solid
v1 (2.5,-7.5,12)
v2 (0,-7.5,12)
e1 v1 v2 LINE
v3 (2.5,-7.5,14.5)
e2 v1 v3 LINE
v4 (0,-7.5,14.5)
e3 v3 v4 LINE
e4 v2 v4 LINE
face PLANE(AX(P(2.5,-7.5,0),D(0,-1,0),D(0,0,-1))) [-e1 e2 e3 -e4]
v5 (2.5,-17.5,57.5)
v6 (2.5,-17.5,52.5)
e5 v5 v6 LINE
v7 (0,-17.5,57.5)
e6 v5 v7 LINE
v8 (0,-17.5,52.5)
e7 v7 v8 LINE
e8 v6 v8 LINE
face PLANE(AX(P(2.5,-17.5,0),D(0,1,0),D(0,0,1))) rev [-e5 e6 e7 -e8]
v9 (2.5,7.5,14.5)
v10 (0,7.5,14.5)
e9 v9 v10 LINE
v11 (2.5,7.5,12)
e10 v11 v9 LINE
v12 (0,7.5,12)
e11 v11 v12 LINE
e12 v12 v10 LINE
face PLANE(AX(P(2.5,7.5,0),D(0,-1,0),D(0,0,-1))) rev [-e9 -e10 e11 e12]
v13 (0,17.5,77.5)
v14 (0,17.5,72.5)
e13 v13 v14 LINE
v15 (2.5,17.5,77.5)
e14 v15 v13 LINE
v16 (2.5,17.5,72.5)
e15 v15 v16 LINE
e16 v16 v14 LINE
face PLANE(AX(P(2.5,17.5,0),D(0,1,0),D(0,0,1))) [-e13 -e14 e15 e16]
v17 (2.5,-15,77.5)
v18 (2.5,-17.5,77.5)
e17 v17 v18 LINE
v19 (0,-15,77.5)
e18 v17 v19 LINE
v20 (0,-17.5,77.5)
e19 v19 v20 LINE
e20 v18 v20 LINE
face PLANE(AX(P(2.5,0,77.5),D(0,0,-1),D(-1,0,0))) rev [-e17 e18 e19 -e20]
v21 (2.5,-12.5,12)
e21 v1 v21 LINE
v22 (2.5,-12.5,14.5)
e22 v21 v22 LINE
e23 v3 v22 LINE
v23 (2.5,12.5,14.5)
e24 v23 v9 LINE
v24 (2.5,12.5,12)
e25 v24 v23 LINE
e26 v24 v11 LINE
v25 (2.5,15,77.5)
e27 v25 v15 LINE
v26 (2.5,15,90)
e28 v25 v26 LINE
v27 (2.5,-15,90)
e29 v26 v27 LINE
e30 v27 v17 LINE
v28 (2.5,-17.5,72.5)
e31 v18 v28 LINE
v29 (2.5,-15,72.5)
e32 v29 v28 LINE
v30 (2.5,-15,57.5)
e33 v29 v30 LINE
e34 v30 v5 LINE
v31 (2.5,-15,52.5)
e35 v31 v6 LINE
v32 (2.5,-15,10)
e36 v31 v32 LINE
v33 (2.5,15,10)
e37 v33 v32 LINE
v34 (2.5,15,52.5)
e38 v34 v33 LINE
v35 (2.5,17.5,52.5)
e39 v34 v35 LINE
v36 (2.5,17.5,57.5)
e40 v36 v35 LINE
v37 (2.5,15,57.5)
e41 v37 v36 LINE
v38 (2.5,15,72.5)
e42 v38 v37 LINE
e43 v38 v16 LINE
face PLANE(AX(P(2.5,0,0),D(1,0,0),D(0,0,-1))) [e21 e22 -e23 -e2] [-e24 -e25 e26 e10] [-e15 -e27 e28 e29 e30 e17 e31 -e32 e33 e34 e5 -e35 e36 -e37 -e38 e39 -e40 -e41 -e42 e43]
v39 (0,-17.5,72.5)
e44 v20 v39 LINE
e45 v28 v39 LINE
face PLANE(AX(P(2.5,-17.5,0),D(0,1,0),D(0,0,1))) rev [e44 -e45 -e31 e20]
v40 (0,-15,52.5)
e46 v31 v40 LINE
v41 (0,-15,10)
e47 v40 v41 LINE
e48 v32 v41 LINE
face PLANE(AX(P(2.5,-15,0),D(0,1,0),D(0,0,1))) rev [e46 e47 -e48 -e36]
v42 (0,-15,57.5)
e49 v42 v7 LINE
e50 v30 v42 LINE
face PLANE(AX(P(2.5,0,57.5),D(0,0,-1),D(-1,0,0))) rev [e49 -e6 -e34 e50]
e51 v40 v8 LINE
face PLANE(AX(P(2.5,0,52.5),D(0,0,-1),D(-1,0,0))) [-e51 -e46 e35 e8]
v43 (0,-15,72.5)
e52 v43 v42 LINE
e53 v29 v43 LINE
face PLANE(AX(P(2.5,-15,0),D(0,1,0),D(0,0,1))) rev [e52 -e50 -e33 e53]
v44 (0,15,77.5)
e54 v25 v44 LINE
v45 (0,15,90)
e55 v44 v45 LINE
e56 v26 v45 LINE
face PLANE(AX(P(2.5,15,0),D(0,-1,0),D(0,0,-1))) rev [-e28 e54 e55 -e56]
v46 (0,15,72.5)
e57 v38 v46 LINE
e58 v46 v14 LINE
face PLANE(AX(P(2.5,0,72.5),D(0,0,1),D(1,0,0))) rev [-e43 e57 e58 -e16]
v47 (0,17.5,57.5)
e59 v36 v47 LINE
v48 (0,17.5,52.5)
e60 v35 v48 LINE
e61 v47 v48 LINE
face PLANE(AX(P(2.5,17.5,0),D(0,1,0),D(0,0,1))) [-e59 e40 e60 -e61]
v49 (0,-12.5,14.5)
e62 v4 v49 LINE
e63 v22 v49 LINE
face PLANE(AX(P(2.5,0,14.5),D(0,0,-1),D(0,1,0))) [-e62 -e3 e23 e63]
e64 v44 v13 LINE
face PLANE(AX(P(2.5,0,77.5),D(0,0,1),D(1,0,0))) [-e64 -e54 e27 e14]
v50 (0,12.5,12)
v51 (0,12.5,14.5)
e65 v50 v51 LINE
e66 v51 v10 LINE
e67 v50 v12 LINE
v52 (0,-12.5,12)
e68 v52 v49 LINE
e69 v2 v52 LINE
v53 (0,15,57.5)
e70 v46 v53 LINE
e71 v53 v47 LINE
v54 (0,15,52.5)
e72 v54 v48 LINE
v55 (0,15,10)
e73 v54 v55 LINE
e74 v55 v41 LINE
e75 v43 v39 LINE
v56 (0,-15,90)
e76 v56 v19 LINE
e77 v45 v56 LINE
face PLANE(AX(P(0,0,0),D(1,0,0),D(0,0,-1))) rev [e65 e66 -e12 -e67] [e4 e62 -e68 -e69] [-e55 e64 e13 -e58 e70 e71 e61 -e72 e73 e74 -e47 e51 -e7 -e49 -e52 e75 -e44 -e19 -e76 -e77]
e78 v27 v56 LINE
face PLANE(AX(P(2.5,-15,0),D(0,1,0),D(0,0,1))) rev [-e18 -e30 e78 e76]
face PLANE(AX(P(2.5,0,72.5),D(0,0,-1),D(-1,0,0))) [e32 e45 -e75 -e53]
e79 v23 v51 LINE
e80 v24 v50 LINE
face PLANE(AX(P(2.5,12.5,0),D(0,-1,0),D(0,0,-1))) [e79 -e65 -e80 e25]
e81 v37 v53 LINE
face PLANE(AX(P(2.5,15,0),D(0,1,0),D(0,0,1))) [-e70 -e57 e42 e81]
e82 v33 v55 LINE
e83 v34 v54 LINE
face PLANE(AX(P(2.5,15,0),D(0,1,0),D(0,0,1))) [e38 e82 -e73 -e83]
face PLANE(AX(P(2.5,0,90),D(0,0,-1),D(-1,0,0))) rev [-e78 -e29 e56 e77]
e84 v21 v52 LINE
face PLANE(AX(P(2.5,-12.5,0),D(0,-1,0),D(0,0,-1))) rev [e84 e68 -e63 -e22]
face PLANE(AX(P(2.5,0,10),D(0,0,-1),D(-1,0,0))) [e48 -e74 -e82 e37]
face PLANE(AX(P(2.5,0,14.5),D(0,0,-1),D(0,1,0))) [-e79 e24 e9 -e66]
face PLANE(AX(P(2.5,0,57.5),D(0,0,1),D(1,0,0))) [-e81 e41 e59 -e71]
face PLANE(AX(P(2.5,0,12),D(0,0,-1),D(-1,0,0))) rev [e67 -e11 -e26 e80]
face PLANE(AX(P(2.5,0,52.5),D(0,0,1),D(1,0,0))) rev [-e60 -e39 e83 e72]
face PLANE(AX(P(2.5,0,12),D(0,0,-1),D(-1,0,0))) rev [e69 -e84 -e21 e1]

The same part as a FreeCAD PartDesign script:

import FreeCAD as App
import Part
import Sketcher

V = App.Vector
Q = App.Units.Quantity


def add_polygon(sketch, points):
    """Adds a closed chain of lines whose ends are joined by coincident constraints."""
    first, n = sketch.GeometryCount, len(points)
    for a, b in zip(points, points[1:] + points[:1]):
        sketch.addGeometry(Part.LineSegment(App.Vector(*a, 0), App.Vector(*b, 0)), False)
    for i in range(n):
        sketch.addConstraint(Sketcher.Constraint("Coincident", first + i, 2, first + (i + 1) % n, 1))

doc = App.newDocument("Part")
body = doc.addObject("PartDesign::Body", "Body")

# Sketch on YZ plane
sketch1 = body.newObject("Sketcher::SketchObject", "Sketch")
sketch1.AttachmentSupport = (doc.getObject("YZ_Plane"), [""])
sketch1.MapMode = "FlatFace"
add_polygon(sketch1, [(15, 10), (15, 52.5), (17.5, 52.5), (17.5, 57.5), (15, 57.5), (15, 72.5), (17.5, 72.5), (17.5, 77.5), (15, 77.5), (15, 90), (-15, 90), (-15, 77.5), (-17.5, 77.5), (-17.5, 72.5), (-15, 72.5), (-15, 57.5), (-17.5, 57.5), (-17.5, 52.5), (-15, 52.5), (-15, 10)])  # lines 0-19
add_polygon(sketch1, [(-12.5, 12), (-12.5, 14.5), (-7.5, 14.5), (-7.5, 12)])  # lines 20-23
add_polygon(sketch1, [(7.5, 12), (7.5, 14.5), (12.5, 14.5), (12.5, 12)])  # lines 24-27
sketch1.addConstraint(Sketcher.Constraint("Vertical", 0))
sketch1.addConstraint(Sketcher.Constraint("Horizontal", 1))
sketch1.addConstraint(Sketcher.Constraint("Vertical", 2))
sketch1.addConstraint(Sketcher.Constraint("Horizontal", 3))
sketch1.addConstraint(Sketcher.Constraint("Vertical", 4))
sketch1.addConstraint(Sketcher.Constraint("Horizontal", 5))
sketch1.addConstraint(Sketcher.Constraint("Vertical", 6))
sketch1.addConstraint(Sketcher.Constraint("Horizontal", 7))
sketch1.addConstraint(Sketcher.Constraint("Vertical", 8))
sketch1.addConstraint(Sketcher.Constraint("Horizontal", 9))
sketch1.addConstraint(Sketcher.Constraint("Vertical", 10))
sketch1.addConstraint(Sketcher.Constraint("Horizontal", 11))
sketch1.addConstraint(Sketcher.Constraint("Vertical", 12))
sketch1.addConstraint(Sketcher.Constraint("Horizontal", 13))
sketch1.addConstraint(Sketcher.Constraint("Vertical", 14))
sketch1.addConstraint(Sketcher.Constraint("Horizontal", 15))
sketch1.addConstraint(Sketcher.Constraint("Vertical", 16))
sketch1.addConstraint(Sketcher.Constraint("Horizontal", 17))
sketch1.addConstraint(Sketcher.Constraint("Vertical", 18))
sketch1.addConstraint(Sketcher.Constraint("Horizontal", 19))
sketch1.addConstraint(Sketcher.Constraint("Vertical", 20))
sketch1.addConstraint(Sketcher.Constraint("Horizontal", 21))
sketch1.addConstraint(Sketcher.Constraint("Vertical", 22))
sketch1.addConstraint(Sketcher.Constraint("Horizontal", 23))
sketch1.addConstraint(Sketcher.Constraint("Vertical", 24))
sketch1.addConstraint(Sketcher.Constraint("Horizontal", 25))
sketch1.addConstraint(Sketcher.Constraint("Vertical", 26))
sketch1.addConstraint(Sketcher.Constraint("Horizontal", 27))
sketch1.addConstraint(Sketcher.Constraint("Symmetric", 7, 2, 10, 2, -2))
sketch1.addConstraint(Sketcher.Constraint("Symmetric", 5, 2, 12, 2, -2))
sketch1.addConstraint(Sketcher.Constraint("Symmetric", 3, 2, 14, 2, -2))
sketch1.addConstraint(Sketcher.Constraint("Symmetric", 1, 2, 16, 2, -2))
sketch1.addConstraint(Sketcher.Constraint("Symmetric", 21, 2, 24, 2, -2))
sketch1.addConstraint(Sketcher.Constraint("Symmetric", 23, 2, 26, 2, -2))
sketch1.addConstraint(Sketcher.Constraint("Vertical", 0, 2, 3, 2))
sketch1.addConstraint(Sketcher.Constraint("Vertical", 2, 2, 5, 2))
sketch1.addConstraint(Sketcher.Constraint("Vertical", 4, 2, 7, 2))
sketch1.addConstraint(Sketcher.Constraint("Vertical", 14, 2, 17, 2))
sketch1.addConstraint(Sketcher.Constraint("Equal", 27, 2))
sketch1.addConstraint(Sketcher.Constraint("Equal", 2, 6))
sketch1.addConstraint(Sketcher.Constraint("Equal", 17, 20))
sketch1.addConstraint(Sketcher.Constraint("DistanceX", 9, 2, 9, 1, Q("30 mm")))
sketch1.addConstraint(Sketcher.Constraint("DistanceX", 21, 1, 21, 2, Q("5 mm")))
sketch1.addConstraint(Sketcher.Constraint("DistanceY", 4, 1, 4, 2, Q("15 mm")))
sketch1.addConstraint(Sketcher.Constraint("DistanceX", 1, 1, 1, 2, Q("2.5 mm")))
sketch1.addConstraint(Sketcher.Constraint("DistanceY", 0, 1, 0, 2, Q("42.5 mm")))
sketch1.addConstraint(Sketcher.Constraint("DistanceY", 8, 1, 8, 2, Q("12.5 mm")))
sketch1.addConstraint(Sketcher.Constraint("DistanceY", -1, 1, 8, 2, Q("90 mm")))
sketch1.addConstraint(Sketcher.Constraint("DistanceY", -1, 1, 22, 2, Q("12 mm")))
sketch1.addConstraint(Sketcher.Constraint("DistanceX", 16, 2, 20, 2, Q("5 mm")))
pad1 = body.newObject("PartDesign::Pad", "Pad")
pad1.Profile = sketch1
pad1.Length = 2.5

doc.recompute()
